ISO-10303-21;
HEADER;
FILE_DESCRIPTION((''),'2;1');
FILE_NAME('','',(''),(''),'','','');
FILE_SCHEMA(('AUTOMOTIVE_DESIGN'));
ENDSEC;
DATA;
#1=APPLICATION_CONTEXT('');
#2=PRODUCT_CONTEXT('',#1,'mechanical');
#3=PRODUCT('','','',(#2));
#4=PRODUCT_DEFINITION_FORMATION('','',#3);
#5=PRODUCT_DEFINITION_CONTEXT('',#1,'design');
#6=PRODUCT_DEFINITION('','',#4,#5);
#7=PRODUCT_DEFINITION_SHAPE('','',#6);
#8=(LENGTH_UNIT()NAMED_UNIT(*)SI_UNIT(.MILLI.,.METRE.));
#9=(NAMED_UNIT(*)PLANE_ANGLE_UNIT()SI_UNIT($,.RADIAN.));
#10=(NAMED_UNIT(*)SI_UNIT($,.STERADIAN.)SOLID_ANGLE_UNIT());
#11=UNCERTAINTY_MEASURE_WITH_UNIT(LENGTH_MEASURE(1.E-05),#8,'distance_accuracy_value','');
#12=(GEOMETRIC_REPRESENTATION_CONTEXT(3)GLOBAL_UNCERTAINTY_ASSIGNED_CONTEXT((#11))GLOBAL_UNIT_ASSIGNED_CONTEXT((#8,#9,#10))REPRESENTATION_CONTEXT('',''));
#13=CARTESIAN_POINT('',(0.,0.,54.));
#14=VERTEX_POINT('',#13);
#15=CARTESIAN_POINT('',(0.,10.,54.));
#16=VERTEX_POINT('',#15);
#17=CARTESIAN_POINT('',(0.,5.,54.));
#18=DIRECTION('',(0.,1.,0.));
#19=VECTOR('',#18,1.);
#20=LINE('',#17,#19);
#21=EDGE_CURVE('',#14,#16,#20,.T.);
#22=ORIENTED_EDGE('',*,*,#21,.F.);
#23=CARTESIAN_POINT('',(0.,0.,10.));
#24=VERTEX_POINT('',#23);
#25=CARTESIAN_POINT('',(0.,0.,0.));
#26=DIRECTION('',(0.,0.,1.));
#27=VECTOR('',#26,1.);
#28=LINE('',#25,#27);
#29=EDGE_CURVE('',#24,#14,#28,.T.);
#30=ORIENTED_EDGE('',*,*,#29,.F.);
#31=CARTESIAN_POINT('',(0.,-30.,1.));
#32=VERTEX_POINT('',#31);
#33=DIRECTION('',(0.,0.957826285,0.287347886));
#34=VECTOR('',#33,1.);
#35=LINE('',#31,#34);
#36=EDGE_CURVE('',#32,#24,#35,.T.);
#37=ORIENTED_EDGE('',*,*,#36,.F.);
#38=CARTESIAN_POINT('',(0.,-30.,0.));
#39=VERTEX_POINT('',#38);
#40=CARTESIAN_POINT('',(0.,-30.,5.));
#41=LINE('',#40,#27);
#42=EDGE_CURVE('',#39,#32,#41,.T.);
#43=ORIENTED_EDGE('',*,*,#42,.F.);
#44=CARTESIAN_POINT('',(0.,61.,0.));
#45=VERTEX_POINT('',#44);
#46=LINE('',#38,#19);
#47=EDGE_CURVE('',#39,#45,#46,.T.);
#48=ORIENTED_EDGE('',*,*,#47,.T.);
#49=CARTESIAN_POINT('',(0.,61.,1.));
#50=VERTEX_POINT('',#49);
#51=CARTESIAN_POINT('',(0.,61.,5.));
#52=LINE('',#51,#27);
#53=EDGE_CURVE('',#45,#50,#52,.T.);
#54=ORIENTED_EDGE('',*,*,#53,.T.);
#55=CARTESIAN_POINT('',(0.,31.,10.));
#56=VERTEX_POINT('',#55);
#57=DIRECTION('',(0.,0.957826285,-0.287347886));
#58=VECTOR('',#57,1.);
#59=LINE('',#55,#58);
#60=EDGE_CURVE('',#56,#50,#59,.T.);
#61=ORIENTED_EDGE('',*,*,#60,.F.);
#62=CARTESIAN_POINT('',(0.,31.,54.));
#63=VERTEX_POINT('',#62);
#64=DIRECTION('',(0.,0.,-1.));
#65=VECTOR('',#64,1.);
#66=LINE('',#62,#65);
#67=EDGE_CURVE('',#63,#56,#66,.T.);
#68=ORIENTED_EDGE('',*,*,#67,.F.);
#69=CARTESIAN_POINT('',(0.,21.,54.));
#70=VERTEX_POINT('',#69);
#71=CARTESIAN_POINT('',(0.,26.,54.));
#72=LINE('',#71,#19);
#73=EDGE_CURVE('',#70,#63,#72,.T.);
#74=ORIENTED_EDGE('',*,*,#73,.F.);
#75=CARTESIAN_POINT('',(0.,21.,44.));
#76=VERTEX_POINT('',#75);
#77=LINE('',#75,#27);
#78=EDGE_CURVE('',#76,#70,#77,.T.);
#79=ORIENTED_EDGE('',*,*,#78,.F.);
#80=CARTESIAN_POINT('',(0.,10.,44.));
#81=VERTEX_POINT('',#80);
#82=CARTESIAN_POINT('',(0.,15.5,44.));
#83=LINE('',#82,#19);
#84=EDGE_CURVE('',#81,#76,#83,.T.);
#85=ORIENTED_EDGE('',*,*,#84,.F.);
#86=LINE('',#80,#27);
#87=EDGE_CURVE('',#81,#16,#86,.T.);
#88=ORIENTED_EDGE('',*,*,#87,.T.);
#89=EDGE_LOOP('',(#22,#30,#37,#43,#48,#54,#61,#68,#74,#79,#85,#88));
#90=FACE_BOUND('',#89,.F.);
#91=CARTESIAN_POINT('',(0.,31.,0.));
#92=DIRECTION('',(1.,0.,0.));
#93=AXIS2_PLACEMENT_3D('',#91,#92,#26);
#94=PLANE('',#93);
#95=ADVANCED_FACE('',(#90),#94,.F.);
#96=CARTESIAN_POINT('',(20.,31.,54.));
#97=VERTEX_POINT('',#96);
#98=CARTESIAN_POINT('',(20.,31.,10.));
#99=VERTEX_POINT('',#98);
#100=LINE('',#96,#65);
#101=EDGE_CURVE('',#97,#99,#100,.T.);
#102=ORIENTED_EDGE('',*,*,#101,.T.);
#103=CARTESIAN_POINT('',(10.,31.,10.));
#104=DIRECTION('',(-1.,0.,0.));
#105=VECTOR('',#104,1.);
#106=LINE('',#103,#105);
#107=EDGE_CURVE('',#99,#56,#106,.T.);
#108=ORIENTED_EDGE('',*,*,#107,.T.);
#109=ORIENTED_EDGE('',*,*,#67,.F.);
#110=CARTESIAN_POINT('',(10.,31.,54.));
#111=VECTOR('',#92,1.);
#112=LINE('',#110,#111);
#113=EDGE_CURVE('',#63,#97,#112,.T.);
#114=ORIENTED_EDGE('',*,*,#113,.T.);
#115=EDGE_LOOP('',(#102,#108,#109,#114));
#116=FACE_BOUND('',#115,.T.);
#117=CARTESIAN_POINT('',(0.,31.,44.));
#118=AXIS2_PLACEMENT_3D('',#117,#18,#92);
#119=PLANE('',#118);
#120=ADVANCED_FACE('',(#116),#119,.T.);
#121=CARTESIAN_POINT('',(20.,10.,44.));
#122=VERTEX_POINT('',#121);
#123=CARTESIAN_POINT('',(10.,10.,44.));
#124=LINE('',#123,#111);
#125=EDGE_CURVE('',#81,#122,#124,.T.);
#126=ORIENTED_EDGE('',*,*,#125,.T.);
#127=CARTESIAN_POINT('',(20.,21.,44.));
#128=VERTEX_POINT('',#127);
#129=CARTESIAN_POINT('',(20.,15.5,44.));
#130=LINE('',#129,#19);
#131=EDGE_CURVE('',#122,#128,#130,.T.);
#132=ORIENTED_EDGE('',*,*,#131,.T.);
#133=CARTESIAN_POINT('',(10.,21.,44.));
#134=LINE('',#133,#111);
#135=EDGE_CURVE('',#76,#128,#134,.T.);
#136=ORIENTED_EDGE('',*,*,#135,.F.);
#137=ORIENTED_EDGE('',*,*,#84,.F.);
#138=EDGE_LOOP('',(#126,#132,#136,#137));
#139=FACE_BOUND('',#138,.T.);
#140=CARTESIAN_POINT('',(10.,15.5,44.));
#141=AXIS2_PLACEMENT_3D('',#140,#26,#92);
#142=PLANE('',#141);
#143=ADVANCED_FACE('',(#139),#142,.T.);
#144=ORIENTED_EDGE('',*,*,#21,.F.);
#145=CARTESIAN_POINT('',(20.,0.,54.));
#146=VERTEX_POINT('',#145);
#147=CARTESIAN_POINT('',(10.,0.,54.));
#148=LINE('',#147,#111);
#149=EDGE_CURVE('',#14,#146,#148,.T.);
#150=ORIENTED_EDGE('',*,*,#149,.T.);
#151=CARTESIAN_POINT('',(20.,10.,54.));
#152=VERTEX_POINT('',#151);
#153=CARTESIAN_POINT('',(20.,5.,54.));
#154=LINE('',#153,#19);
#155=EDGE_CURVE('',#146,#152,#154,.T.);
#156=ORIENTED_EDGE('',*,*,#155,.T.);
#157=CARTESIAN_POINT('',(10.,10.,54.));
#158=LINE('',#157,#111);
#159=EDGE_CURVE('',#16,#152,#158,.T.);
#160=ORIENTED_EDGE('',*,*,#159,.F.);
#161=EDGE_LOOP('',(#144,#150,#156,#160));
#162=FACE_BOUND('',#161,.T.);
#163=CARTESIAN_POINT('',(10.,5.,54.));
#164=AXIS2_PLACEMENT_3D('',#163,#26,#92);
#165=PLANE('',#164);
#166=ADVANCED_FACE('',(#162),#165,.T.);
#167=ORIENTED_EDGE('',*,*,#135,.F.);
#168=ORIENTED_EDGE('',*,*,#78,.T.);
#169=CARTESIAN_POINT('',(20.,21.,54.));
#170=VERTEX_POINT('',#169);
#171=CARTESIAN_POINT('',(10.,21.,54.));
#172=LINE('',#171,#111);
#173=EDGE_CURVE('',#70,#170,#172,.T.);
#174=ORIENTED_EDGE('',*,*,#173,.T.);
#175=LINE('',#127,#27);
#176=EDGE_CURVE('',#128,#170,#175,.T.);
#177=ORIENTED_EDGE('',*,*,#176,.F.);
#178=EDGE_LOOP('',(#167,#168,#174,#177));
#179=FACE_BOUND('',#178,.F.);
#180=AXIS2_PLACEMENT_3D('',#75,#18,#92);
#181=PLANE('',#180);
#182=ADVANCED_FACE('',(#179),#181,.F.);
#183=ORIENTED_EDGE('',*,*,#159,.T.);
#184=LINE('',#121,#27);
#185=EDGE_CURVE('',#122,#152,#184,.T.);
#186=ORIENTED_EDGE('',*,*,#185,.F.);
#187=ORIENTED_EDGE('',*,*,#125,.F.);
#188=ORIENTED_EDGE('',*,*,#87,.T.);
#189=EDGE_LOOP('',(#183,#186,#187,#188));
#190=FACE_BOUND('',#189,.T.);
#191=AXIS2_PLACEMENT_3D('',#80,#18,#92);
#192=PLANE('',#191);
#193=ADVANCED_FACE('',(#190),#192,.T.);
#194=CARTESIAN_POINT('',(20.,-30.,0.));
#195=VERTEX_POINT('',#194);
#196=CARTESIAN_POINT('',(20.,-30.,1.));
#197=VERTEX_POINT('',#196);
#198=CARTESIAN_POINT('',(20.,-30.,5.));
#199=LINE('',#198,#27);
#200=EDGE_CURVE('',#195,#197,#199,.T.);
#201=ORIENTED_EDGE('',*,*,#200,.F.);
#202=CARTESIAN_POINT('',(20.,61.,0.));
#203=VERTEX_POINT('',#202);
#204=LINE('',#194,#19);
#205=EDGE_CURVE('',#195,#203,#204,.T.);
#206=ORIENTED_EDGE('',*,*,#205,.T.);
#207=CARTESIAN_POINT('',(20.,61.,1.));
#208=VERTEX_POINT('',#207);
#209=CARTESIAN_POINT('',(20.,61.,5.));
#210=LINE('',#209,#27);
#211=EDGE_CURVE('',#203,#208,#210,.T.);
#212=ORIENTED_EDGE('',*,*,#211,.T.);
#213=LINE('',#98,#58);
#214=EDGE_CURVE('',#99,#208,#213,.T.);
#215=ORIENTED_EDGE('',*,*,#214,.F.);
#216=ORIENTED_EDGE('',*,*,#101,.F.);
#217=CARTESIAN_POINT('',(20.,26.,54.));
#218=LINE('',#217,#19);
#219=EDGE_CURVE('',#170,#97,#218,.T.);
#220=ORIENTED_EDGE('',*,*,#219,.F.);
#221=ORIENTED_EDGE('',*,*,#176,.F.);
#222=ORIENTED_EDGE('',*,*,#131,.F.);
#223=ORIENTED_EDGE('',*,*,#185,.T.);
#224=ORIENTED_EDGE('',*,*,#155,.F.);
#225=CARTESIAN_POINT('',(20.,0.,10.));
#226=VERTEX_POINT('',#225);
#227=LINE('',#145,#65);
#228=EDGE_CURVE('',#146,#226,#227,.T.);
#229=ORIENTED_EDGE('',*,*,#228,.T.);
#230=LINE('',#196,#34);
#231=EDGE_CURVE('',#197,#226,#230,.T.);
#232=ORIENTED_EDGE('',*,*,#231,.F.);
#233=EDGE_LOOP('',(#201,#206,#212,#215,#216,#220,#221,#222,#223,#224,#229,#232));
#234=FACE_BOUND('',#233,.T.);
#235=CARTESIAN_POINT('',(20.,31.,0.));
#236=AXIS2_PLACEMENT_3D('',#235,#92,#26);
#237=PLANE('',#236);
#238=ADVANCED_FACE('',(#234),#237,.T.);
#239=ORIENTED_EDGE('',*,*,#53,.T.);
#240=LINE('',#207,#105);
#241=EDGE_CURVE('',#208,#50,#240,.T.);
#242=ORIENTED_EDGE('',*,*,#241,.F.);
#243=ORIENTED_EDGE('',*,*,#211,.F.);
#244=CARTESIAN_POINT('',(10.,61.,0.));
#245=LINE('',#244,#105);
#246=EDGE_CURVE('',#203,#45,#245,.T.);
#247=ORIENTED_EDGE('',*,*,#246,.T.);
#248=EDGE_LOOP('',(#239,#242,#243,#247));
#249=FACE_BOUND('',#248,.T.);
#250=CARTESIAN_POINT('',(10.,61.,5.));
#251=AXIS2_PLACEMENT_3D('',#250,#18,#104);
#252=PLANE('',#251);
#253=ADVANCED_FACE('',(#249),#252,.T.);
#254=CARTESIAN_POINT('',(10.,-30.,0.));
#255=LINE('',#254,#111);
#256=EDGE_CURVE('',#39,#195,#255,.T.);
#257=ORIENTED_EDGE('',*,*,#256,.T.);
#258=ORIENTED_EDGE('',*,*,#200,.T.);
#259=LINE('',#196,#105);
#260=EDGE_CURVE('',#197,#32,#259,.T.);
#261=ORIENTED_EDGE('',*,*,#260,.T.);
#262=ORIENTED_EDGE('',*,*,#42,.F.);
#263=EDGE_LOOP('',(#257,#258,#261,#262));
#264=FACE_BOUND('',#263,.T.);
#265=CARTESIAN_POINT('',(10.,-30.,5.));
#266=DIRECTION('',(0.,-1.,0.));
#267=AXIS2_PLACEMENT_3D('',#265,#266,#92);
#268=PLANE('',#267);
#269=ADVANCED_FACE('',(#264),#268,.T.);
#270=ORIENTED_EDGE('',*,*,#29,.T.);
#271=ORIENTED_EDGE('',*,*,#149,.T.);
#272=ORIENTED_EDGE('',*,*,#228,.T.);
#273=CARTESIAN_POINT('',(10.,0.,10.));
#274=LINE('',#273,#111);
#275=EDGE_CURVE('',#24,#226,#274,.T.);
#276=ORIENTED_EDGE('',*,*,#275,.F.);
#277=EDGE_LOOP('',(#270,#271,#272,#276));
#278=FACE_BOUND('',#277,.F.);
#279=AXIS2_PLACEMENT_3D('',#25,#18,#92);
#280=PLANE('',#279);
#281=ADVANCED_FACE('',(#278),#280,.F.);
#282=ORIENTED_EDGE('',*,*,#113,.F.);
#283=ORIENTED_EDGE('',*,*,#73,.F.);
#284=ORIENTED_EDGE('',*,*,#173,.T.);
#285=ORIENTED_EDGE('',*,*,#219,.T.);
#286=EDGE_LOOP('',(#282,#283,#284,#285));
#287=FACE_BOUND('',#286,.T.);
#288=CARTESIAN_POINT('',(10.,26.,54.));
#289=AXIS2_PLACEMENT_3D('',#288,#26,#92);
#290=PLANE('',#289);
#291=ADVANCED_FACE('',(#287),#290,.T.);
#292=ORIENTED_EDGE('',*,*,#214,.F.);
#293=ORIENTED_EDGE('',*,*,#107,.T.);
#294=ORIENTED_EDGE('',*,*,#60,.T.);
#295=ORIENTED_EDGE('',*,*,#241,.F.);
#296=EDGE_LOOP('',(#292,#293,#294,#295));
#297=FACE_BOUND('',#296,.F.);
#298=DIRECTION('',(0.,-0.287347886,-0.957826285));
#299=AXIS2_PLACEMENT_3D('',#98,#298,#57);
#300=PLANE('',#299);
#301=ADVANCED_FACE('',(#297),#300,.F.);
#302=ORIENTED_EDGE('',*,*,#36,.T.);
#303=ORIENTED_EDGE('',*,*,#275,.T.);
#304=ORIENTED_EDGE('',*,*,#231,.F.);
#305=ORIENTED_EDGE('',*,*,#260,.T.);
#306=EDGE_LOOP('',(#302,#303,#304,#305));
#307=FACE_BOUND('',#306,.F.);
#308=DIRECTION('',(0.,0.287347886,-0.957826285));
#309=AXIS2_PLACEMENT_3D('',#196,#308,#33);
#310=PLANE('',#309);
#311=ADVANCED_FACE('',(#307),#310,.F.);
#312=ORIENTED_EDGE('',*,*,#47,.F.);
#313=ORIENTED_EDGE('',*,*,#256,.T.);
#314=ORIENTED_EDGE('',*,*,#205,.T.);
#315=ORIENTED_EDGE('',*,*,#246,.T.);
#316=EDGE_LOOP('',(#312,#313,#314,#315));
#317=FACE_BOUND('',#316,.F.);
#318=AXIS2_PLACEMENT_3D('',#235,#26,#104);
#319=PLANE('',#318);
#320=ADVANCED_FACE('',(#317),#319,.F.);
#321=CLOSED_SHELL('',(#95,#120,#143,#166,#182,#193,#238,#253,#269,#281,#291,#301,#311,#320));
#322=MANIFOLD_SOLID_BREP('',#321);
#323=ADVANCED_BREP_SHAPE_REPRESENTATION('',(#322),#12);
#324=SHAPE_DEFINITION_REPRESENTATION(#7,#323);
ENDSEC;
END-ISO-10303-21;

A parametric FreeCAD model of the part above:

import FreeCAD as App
import Part
import Sketcher

V = App.Vector
Q = App.Units.Quantity

doc = App.newDocument("Part")
body = doc.addObject("PartDesign::Body", "Body")

sketch1 = doc.addObject("Sketcher::SketchObject", "Sketch")
body.addObject(sketch1)
sketch1.AttachmentSupport = (doc.XY_Plane, [""])
sketch1.MapMode = "FlatFace"
sketch1.addGeometry(Part.LineSegment(V(0, 31, 0), V(0, 0, 0)), False)
sketch1.addGeometry(Part.LineSegment(V(0, 0, 0), V(20, 0, 0)), False)
sketch1.addGeometry(Part.LineSegment(V(20, 0, 0), V(20, 31, 0)), False)
sketch1.addGeometry(Part.LineSegment(V(20, 31, 0), V(0, 31, 0)), False)
sketch1.addConstraint(Sketcher.Constraint("Coincident", 0, 2, 1, 1))
sketch1.addConstraint(Sketcher.Constraint("Coincident", 1, 2, 2, 1))
sketch1.addConstraint(Sketcher.Constraint("Coincident", 2, 2, 3, 1))
sketch1.addConstraint(Sketcher.Constraint("Coincident", 3, 2, 0, 1))
sketch1.addConstraint(Sketcher.Constraint("Vertical", 0))
sketch1.addConstraint(Sketcher.Constraint("Horizontal", 1))
sketch1.addConstraint(Sketcher.Constraint("Vertical", 2))
sketch1.addConstraint(Sketcher.Constraint("Horizontal", 3))
sketch1.addConstraint(Sketcher.Constraint("Coincident", 0, 2, -1, 1))
sketch1.addConstraint(Sketcher.Constraint("DistanceX", 1, 1, 1, 2, Q("20 mm")))
sketch1.addConstraint(Sketcher.Constraint("DistanceY", 0, 2, 0, 1, Q("31 mm")))
pad1 = doc.addObject("PartDesign::Pad", "Pad")
body.addObject(pad1)
pad1.Profile = sketch1
pad1.Length = 44

sketch2 = doc.addObject("Sketcher::SketchObject", "Sketch001")
body.addObject(sketch2)
sketch2.AttachmentSupport = (doc.XY_Plane, [""])
sketch2.MapMode = "FlatFace"
sketch2.AttachmentOffset = App.Placement(V(0, 0, 44), App.Rotation())
sketch2.addGeometry(Part.LineSegment(V(0, 31, 0), V(0, 21, 0)), False)
sketch2.addGeometry(Part.LineSegment(V(0, 21, 0), V(20, 21, 0)), False)
sketch2.addGeometry(Part.LineSegment(V(20, 21, 0), V(20, 31, 0)), False)
sketch2.addGeometry(Part.LineSegment(V(20, 31, 0), V(0, 31, 0)), False)
sketch2.addGeometry(Part.LineSegment(V(0, 10, 0), V(0, 0, 0)), False)
sketch2.addGeometry(Part.LineSegment(V(0, 0, 0), V(20, 0, 0)), False)
sketch2.addGeometry(Part.LineSegment(V(20, 0, 0), V(20, 10, 0)), False)
sketch2.addGeometry(Part.LineSegment(V(20, 10, 0), V(0, 10, 0)), False)
sketch2.addConstraint(Sketcher.Constraint("Coincident", 0, 2, 1, 1))
sketch2.addConstraint(Sketcher.Constraint("Coincident", 1, 2, 2, 1))
sketch2.addConstraint(Sketcher.Constraint("Coincident", 2, 2, 3, 1))
sketch2.addConstraint(Sketcher.Constraint("Coincident", 3, 2, 0, 1))
sketch2.addConstraint(Sketcher.Constraint("Coincident", 4, 2, 5, 1))
sketch2.addConstraint(Sketcher.Constraint("Coincident", 5, 2, 6, 1))
sketch2.addConstraint(Sketcher.Constraint("Coincident", 6, 2, 7, 1))
sketch2.addConstraint(Sketcher.Constraint("Coincident", 7, 2, 4, 1))
sketch2.addConstraint(Sketcher.Constraint("Vertical", 0))
sketch2.addConstraint(Sketcher.Constraint("Horizontal", 1))
sketch2.addConstraint(Sketcher.Constraint("Vertical", 2))
sketch2.addConstraint(Sketcher.Constraint("Horizontal", 3))
sketch2.addConstraint(Sketcher.Constraint("Vertical", 4))
sketch2.addConstraint(Sketcher.Constraint("Horizontal", 5))
sketch2.addConstraint(Sketcher.Constraint("Vertical", 6))
sketch2.addConstraint(Sketcher.Constraint("Horizontal", 7))
sketch2.addConstraint(Sketcher.Constraint("Coincident", 4, 2, -1, 1))
sketch2.addConstraint(Sketcher.Constraint("PointOnObject", 0, 2, -2))
sketch2.addConstraint(Sketcher.Constraint("Vertical", 2, 2, 5, 2))
sketch2.addConstraint(Sketcher.Constraint("Equal", 2, 4))
sketch2.addConstraint(Sketcher.Constraint("DistanceX", 1, 1, 1, 2, Q("20 mm")))
sketch2.addConstraint(Sketcher.Constraint("DistanceY", 0, 2, 0, 1, Q("10 mm")))
sketch2.addConstraint(Sketcher.Constraint("DistanceY", -1, 1, 0, 2, Q("21 mm")))
pad2 = doc.addObject("PartDesign::Pad", "Pad001")
body.addObject(pad2)
pad2.Profile = sketch2
pad2.Length = 10

sketch3 = doc.addObject("Sketcher::SketchObject", "Sketch002")
body.addObject(sketch3)
sketch3.AttachmentSupport = (doc.XZ_Plane, [""])
sketch3.MapMode = "FlatFace"
sketch3.addGeometry(Part.LineSegment(V(0, 10, 0), V(0, 0, 0)), False)
sketch3.addGeometry(Part.LineSegment(V(0, 0, 0), V(20, 0, 0)), False)
sketch3.addGeometry(Part.LineSegment(V(20, 0, 0), V(20, 10, 0)), False)
sketch3.addGeometry(Part.LineSegment(V(20, 10, 0), V(0, 10, 0)), False)
sketch3.addConstraint(Sketcher.Constraint("Coincident", 0, 2, 1, 1))
sketch3.addConstraint(Sketcher.Constraint("Coincident", 1, 2, 2, 1))
sketch3.addConstraint(Sketcher.Constraint("Coincident", 2, 2, 3, 1))
sketch3.addConstraint(Sketcher.Constraint("Coincident", 3, 2, 0, 1))
sketch3.addConstraint(Sketcher.Constraint("Vertical", 0))
sketch3.addConstraint(Sketcher.Constraint("Horizontal", 1))
sketch3.addConstraint(Sketcher.Constraint("Vertical", 2))
sketch3.addConstraint(Sketcher.Constraint("Horizontal", 3))
sketch3.addConstraint(Sketcher.Constraint("Coincident", 0, 2, -1, 1))
sketch3.addConstraint(Sketcher.Constraint("DistanceX", 1, 1, 1, 2, Q("20 mm")))
sketch3.addConstraint(Sketcher.Constraint("DistanceY", 0, 2, 0, 1, Q("10 mm")))
pad3 = doc.addObject("PartDesign::Pad", "Pad002")
body.addObject(pad3)
pad3.Profile = sketch3
pad3.Length = 30

sketch4 = doc.addObject("Sketcher::SketchObject", "Sketch003")
body.addObject(sketch4)
sketch4.AttachmentSupport = (doc.XZ_Plane, [""])
sketch4.MapMode = "FlatFace"
sketch4.AttachmentOffset = App.Placement(V(0, 0, -31), App.Rotation())
sketch4.addGeometry(Part.LineSegment(V(20, 10, 0), V(20, 0, 0)), False)
sketch4.addGeometry(Part.LineSegment(V(20, 0, 0), V(0, 0, 0)), False)
sketch4.addGeometry(Part.LineSegment(V(0, 0, 0), V(0, 10, 0)), False)
sketch4.addGeometry(Part.LineSegment(V(0, 10, 0), V(20, 10, 0)), False)
sketch4.addConstraint(Sketcher.Constraint("Coincident", 0, 2, 1, 1))
sketch4.addConstraint(Sketcher.Constraint("Coincident", 1, 2, 2, 1))
sketch4.addConstraint(Sketcher.Constraint("Coincident", 2, 2, 3, 1))
sketch4.addConstraint(Sketcher.Constraint("Coincident", 3, 2, 0, 1))
sketch4.addConstraint(Sketcher.Constraint("Vertical", 0))
sketch4.addConstraint(Sketcher.Constraint("Horizontal", 1))
sketch4.addConstraint(Sketcher.Constraint("Vertical", 2))
sketch4.addConstraint(Sketcher.Constraint("Horizontal", 3))
sketch4.addConstraint(Sketcher.Constraint("Coincident", 1, 2, -1, 1))
sketch4.addConstraint(Sketcher.Constraint("DistanceX", 1, 2, 1, 1, Q("20 mm")))
sketch4.addConstraint(Sketcher.Constraint("DistanceY", 0, 2, 0, 1, Q("10 mm")))
pad4 = doc.addObject("PartDesign::Pad", "Pad003")
body.addObject(pad4)
pad4.Profile = sketch4
pad4.Length = 30
pad4.Reversed = True

sketch5 = doc.addObject("Sketcher::SketchObject", "Sketch004")
body.addObject(sketch5)
sketch5.AttachmentSupport = (doc.YZ_Plane, [""])
sketch5.MapMode = "FlatFace"
sketch5.AttachmentOffset = App.Placement(V(0, 0, 20), App.Rotation())
sketch5.addGeometry(Part.LineSegment(V(-30, 1, 0), V(0, 10, 0)), False)
sketch5.addGeometry(Part.LineSegment(V(0, 10, 0), V(-30, 10, 0)), False)
sketch5.addGeometry(Part.LineSegment(V(-30, 10, 0), V(-30, 1, 0)), False)
sketch5.addGeometry(Part.LineSegment(V(31, 10, 0), V(61, 1, 0)), False)
sketch5.addGeometry(Part.LineSegment(V(61, 1, 0), V(61, 10, 0)), False)
sketch5.addGeometry(Part.LineSegment(V(61, 10, 0), V(31, 10, 0)), False)
sketch5.addConstraint(Sketcher.Constraint("Coincident", 0, 2, 1, 1))
sketch5.addConstraint(Sketcher.Constraint("Coincident", 1, 2, 2, 1))
sketch5.addConstraint(Sketcher.Constraint("Coincident", 2, 2, 0, 1))
sketch5.addConstraint(Sketcher.Constraint("Coincident", 3, 2, 4, 1))
sketch5.addConstraint(Sketcher.Constraint("Coincident", 4, 2, 5, 1))
sketch5.addConstraint(Sketcher.Constraint("Coincident", 5, 2, 3, 1))
sketch5.addConstraint(Sketcher.Constraint("Horizontal", 1))
sketch5.addConstraint(Sketcher.Constraint("Vertical", 2))
sketch5.addConstraint(Sketcher.Constraint("Vertical", 4))
sketch5.addConstraint(Sketcher.Constraint("Horizontal", 5))
sketch5.addConstraint(Sketcher.Constraint("PointOnObject", 0, 2, -2))
sketch5.addConstraint(Sketcher.Constraint("Horizontal", 2, 2, 3, 2))
sketch5.addConstraint(Sketcher.Constraint("Horizontal", 1, 2, 4, 2))
sketch5.addConstraint(Sketcher.Constraint("Equal", 1, 5))
sketch5.addConstraint(Sketcher.Constraint("DistanceX", 1, 2, 1, 1, Q("30 mm")))
sketch5.addConstraint(Sketcher.Constraint("DistanceY", 2, 2, 2, 1, Q("9 mm")))
sketch5.addConstraint(Sketcher.Constraint("DistanceY", -1, 1, 0, 2, Q("10 mm")))
sketch5.addConstraint(Sketcher.Constraint("DistanceX", -1, 1, 3, 2, Q("61 mm")))
pocket1 = doc.addObject("PartDesign::Pocket", "Pocket")
body.addObject(pocket1)
pocket1.Profile = sketch5
pocket1.Length = 20

doc.recompute()
